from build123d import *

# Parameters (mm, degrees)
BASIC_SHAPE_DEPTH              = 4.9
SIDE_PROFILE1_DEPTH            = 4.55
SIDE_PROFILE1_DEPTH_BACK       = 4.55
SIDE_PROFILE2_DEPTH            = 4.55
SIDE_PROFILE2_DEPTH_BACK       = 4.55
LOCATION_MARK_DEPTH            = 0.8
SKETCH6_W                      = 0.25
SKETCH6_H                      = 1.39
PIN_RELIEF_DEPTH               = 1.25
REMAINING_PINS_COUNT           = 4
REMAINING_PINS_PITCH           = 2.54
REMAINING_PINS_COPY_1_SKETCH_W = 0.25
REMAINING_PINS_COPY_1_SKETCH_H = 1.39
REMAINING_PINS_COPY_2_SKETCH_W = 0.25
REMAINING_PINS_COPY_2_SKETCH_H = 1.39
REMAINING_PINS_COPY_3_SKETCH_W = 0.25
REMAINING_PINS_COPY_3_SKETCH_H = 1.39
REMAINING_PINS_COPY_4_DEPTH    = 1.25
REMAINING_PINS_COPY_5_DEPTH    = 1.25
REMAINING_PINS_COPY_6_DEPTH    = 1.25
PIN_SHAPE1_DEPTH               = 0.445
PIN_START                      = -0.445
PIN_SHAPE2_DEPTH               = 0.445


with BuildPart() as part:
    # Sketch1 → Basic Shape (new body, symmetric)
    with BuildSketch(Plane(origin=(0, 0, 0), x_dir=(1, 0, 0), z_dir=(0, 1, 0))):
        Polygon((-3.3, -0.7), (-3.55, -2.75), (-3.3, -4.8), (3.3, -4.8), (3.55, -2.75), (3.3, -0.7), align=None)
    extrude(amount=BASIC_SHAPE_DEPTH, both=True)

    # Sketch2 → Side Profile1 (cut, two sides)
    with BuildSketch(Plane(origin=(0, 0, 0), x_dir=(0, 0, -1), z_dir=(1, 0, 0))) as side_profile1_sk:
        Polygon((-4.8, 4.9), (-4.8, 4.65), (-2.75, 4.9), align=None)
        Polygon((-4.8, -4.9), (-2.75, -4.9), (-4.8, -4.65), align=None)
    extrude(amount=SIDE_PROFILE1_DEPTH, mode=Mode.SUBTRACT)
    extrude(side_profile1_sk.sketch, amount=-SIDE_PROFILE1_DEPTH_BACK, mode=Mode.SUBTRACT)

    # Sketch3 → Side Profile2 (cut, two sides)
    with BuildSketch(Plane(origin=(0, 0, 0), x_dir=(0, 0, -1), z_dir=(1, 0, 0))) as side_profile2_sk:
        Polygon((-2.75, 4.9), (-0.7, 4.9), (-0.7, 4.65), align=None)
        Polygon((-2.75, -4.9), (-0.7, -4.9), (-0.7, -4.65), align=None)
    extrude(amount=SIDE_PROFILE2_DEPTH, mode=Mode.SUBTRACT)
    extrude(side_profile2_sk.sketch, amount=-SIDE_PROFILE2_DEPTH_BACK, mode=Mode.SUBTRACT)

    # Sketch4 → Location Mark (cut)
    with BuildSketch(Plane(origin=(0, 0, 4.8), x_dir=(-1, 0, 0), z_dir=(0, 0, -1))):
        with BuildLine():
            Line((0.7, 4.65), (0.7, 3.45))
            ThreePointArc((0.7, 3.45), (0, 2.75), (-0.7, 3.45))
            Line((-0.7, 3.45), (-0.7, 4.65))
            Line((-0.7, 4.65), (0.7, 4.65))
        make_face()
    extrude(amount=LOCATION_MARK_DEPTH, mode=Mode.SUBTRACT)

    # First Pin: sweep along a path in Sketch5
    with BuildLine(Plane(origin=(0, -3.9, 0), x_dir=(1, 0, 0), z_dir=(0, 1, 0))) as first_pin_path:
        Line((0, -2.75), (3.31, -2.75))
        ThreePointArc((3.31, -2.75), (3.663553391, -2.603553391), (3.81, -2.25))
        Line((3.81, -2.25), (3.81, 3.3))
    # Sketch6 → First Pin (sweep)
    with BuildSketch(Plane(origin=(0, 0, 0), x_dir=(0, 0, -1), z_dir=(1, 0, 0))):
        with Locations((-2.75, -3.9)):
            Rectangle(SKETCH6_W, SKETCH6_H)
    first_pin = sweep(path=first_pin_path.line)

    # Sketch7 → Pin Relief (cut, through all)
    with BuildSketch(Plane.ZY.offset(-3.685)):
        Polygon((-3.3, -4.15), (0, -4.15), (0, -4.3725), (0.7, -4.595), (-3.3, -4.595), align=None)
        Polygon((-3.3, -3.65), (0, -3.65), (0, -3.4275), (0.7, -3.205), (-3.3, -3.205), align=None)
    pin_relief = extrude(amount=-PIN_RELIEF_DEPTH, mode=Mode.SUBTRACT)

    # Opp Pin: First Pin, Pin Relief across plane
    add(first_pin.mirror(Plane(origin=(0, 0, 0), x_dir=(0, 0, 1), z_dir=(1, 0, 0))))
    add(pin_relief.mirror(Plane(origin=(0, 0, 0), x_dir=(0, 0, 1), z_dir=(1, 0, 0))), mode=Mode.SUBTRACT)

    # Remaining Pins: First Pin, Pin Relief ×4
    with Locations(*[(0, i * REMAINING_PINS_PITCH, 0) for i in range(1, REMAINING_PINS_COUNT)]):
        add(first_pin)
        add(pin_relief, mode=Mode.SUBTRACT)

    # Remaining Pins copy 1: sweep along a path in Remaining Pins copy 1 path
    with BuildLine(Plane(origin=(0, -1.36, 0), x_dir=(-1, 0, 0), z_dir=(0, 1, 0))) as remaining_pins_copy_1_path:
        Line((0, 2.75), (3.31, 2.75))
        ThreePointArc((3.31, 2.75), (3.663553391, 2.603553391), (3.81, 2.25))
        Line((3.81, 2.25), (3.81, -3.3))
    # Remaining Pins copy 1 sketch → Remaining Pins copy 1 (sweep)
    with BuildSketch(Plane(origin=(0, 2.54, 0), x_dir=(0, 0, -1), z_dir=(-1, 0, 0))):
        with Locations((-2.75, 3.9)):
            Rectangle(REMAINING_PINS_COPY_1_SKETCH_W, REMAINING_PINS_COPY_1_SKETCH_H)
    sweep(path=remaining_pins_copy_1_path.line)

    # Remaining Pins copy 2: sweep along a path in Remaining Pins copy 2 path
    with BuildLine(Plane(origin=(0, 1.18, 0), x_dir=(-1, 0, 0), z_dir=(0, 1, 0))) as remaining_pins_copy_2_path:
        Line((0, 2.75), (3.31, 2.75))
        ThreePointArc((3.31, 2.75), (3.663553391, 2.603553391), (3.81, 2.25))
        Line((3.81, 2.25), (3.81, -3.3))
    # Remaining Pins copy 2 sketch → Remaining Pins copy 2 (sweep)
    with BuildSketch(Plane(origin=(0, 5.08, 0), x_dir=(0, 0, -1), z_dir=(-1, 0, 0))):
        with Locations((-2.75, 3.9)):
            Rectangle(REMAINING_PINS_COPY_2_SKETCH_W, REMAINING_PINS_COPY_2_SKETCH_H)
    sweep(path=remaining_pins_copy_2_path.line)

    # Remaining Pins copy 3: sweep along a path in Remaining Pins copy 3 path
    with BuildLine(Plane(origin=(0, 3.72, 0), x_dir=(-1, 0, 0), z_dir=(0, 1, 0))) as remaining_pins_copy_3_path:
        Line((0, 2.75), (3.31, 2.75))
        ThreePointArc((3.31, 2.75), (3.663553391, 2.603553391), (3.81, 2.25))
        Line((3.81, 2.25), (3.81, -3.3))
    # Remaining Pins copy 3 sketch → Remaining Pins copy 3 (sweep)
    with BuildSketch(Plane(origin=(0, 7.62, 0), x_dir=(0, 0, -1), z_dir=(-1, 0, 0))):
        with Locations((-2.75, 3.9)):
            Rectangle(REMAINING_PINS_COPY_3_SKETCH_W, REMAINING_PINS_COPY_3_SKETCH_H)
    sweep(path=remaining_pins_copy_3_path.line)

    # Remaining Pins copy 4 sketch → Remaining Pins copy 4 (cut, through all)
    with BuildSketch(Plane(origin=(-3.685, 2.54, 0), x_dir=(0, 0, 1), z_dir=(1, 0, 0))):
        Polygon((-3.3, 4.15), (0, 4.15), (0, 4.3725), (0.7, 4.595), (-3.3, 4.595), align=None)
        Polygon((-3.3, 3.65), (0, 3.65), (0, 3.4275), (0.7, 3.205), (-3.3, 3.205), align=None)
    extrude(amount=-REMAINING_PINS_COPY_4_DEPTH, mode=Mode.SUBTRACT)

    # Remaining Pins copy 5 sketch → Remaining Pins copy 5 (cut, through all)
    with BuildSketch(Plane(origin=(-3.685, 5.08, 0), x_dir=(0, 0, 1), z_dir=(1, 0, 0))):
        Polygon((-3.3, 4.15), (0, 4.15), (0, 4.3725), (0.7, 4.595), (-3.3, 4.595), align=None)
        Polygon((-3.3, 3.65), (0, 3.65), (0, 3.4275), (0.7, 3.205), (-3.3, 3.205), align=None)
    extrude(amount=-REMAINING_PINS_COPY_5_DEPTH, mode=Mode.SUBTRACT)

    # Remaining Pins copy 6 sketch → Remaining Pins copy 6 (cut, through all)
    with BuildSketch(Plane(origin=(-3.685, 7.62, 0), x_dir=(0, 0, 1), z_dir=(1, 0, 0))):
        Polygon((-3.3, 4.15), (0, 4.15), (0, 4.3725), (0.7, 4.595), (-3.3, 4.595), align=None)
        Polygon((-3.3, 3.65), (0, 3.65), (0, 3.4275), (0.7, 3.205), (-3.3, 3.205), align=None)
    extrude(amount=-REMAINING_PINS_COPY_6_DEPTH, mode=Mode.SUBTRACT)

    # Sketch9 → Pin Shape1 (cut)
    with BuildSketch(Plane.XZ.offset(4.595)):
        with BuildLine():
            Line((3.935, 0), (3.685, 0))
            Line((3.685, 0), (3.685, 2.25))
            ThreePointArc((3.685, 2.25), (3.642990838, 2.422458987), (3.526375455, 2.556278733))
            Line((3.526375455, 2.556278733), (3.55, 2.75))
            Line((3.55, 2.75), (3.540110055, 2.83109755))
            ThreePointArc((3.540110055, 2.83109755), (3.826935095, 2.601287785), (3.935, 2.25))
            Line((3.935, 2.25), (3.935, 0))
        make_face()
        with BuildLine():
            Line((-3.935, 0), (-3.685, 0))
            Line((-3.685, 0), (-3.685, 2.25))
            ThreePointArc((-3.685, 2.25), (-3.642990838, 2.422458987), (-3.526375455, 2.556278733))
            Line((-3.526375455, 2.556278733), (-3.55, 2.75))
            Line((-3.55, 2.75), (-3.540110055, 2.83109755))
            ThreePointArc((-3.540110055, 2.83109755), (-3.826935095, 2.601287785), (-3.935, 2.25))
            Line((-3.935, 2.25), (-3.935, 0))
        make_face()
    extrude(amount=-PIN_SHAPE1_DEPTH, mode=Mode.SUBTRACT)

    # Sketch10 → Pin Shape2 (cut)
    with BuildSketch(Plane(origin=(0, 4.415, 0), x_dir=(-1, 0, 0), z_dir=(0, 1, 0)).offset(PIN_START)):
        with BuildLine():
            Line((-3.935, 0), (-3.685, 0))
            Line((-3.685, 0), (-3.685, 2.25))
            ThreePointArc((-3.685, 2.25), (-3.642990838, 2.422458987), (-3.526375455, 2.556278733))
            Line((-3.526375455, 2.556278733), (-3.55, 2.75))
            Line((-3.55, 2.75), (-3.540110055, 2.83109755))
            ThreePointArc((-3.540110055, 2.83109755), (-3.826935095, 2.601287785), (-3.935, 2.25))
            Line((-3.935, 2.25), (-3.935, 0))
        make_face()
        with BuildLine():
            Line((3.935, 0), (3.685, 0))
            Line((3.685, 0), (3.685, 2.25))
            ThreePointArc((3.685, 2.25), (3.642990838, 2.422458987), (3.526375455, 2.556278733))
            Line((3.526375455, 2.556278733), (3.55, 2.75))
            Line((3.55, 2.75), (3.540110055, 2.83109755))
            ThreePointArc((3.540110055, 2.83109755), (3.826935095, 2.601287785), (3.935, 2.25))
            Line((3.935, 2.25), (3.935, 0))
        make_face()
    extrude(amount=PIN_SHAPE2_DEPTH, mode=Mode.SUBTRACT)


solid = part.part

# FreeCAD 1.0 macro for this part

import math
import FreeCAD as App
import Part
import Sketcher

V = App.Vector
Q = App.Units.Quantity

doc = App.newDocument("Part")
body = doc.addObject("PartDesign::Body", "Body")

sketch1 = body.newObject("Sketcher::SketchObject", "Sketch")
sketch1.AttachmentSupport = (doc.getObject("XZ_Plane"), [""])
sketch1.MapMode = "FlatFace"
sketch1.addGeometry(Part.LineSegment(V(-3.3, 0.7, 0), V(-3.5, 2.8, 0)), False)
sketch1.addGeometry(Part.LineSegment(V(-3.5, 2.8, 0), V(-3.3, 4.8, 0)), False)
sketch1.addGeometry(Part.LineSegment(V(-3.3, 4.8, 0), V(3.3, 4.8, 0)), False)
sketch1.addGeometry(Part.LineSegment(V(3.3, 4.8, 0), V(3.5, 2.8, 0)), False)
sketch1.addGeometry(Part.LineSegment(V(3.5, 2.8, 0), V(3.3, 0.7, 0)), False)
sketch1.addGeometry(Part.LineSegment(V(3.3, 0.7, 0), V(-3.3, 0.7, 0)), False)
sketch1.addConstraint(Sketcher.Constraint("Coincident", 0, 2, 1, 1))
sketch1.addConstraint(Sketcher.Constraint("Coincident", 1, 2, 2, 1))
sketch1.addConstraint(Sketcher.Constraint("Coincident", 2, 2, 3, 1))
sketch1.addConstraint(Sketcher.Constraint("Coincident", 3, 2, 4, 1))
sketch1.addConstraint(Sketcher.Constraint("Coincident", 4, 2, 5, 1))
sketch1.addConstraint(Sketcher.Constraint("Coincident", 5, 2, 0, 1))
sketch1.addConstraint(Sketcher.Constraint("Horizontal", 2))
sketch1.addConstraint(Sketcher.Constraint("Horizontal", 5))
sketch1.addConstraint(Sketcher.Constraint("Symmetric", 0, 2, 3, 2, -2))
sketch1.addConstraint(Sketcher.Constraint("Parallel", 0, 3))
sketch1.addConstraint(Sketcher.Constraint("Parallel", 1, 4))
sketch1.addConstraint(Sketcher.Constraint("Vertical", 2, 2, 4, 2))
sketch1.addConstraint(Sketcher.Constraint("Vertical", 1, 2, 5, 2))
sketch1.addConstraint(Sketcher.Constraint("DistanceX", 2, 1, 2, 2, Q("6.6 mm")))
sketch1.addConstraint(Sketcher.Constraint("DistanceY", -1, 1, 1, 2, Q("4.8 mm")))
sketch1.addConstraint(Sketcher.Constraint("DistanceY", -1, 1, 4, 2, Q("0.7 mm")))
sketch1.addConstraint(Sketcher.Constraint("DistanceX", 0, 2, 3, 2, Q("7.1 mm")))
pad1 = body.newObject("PartDesign::Pad", "Pad")
pad1.Profile = sketch1
pad1.Length = 9.8
pad1.Midplane = True

sketch2 = body.newObject("Sketcher::SketchObject", "Sketch001")
sketch2.AttachmentSupport = (doc.getObject("YZ_Plane"), [""])
sketch2.MapMode = "FlatFace"
sketch2.addGeometry(Part.LineSegment(V(4.9, 4.8, 0), V(4.65, 4.8, 0)), False)
sketch2.addGeometry(Part.LineSegment(V(4.65, 4.8, 0), V(4.9, 2.75, 0)), False)
sketch2.addGeometry(Part.LineSegment(V(4.9, 2.75, 0), V(4.9, 4.8, 0)), False)
sketch2.addGeometry(Part.LineSegment(V(-4.9, 4.8, 0), V(-4.9, 2.75, 0)), False)
sketch2.addGeometry(Part.LineSegment(V(-4.9, 2.75, 0), V(-4.65, 4.8, 0)), False)
sketch2.addGeometry(Part.LineSegment(V(-4.65, 4.8, 0), V(-4.9, 4.8, 0)), False)
sketch2.addConstraint(Sketcher.Constraint("Coincident", 0, 2, 1, 1))
sketch2.addConstraint(Sketcher.Constraint("Coincident", 1, 2, 2, 1))
sketch2.addConstraint(Sketcher.Constraint("Coincident", 2, 2, 0, 1))
sketch2.addConstraint(Sketcher.Constraint("Coincident", 3, 2, 4, 1))
sketch2.addConstraint(Sketcher.Constraint("Coincident", 4, 2, 5, 1))
sketch2.addConstraint(Sketcher.Constraint("Coincident", 5, 2, 3, 1))
sketch2.addConstraint(Sketcher.Constraint("Horizontal", 0))
sketch2.addConstraint(Sketcher.Constraint("Vertical", 2))
sketch2.addConstraint(Sketcher.Constraint("Vertical", 3))
sketch2.addConstraint(Sketcher.Constraint("Horizontal", 5))
sketch2.addConstraint(Sketcher.Constraint("Symmetric", 1, 2, 3, 2, -2))
sketch2.addConstraint(Sketcher.Constraint("Symmetric", 0, 2, 4, 2, -2))
sketch2.addConstraint(Sketcher.Constraint("DistanceX", 0, 2, 0, 1, Q("0.25 mm")))
sketch2.addConstraint(Sketcher.Constraint("DistanceY", 2, 1, 2, 2, Q("2.05 mm")))
sketch2.addConstraint(Sketcher.Constraint("DistanceY", -1, 1, 0, 2, Q("4.8 mm")))
sketch2.addConstraint(Sketcher.Constraint("DistanceX", -1, 1, 1, 2, Q("4.9 mm")))
pocket1 = body.newObject("PartDesign::Pocket", "Pocket")
pocket1.Profile = sketch2
pocket1.Type = "ThroughAll"
pocket1.Midplane = True

sketch3 = body.newObject("Sketcher::SketchObject", "Sketch002")
sketch3.AttachmentSupport = (doc.getObject("YZ_Plane"), [""])
sketch3.MapMode = "FlatFace"
sketch3.addGeometry(Part.LineSegment(V(4.9, 0.7, 0), V(4.9, 2.75, 0)), False)
sketch3.addGeometry(Part.LineSegment(V(4.9, 2.75, 0), V(4.65, 0.7, 0)), False)
sketch3.addGeometry(Part.LineSegment(V(4.65, 0.7, 0), V(4.9, 0.7, 0)), False)
sketch3.addGeometry(Part.LineSegment(V(-4.9, 2.75, 0), V(-4.9, 0.7, 0)), False)
sketch3.addGeometry(Part.LineSegment(V(-4.9, 0.7, 0), V(-4.65, 0.7, 0)), False)
sketch3.addGeometry(Part.LineSegment(V(-4.65, 0.7, 0), V(-4.9, 2.75, 0)), False)
sketch3.addConstraint(Sketcher.Constraint("Coincident", 0, 2, 1, 1))
sketch3.addConstraint(Sketcher.Constraint("Coincident", 1, 2, 2, 1))
sketch3.addConstraint(Sketcher.Constraint("Coincident", 2, 2, 0, 1))
sketch3.addConstraint(Sketcher.Constraint("Coincident", 3, 2, 4, 1))
sketch3.addConstraint(Sketcher.Constraint("Coincident", 4, 2, 5, 1))
sketch3.addConstraint(Sketcher.Constraint("Coincident", 5, 2, 3, 1))
sketch3.addConstraint(Sketcher.Constraint("Vertical", 0))
sketch3.addConstraint(Sketcher.Constraint("Horizontal", 2))
sketch3.addConstraint(Sketcher.Constraint("Vertical", 3))
sketch3.addConstraint(Sketcher.Constraint("Horizontal", 4))
sketch3.addConstraint(Sketcher.Constraint("Symmetric", 2, 2, 3, 2, -2))
sketch3.addConstraint(Sketcher.Constraint("Horizontal", 0, 2, 5, 2))
sketch3.addConstraint(Sketcher.Constraint("Equal", 2, 4))
sketch3.addConstraint(Sketcher.Constraint("DistanceX", 2, 1, 2, 2, Q("0.25 mm")))
sketch3.addConstraint(Sketcher.Constraint("DistanceY", 0, 1, 0, 2, Q("2.05 mm")))
sketch3.addConstraint(Sketcher.Constraint("DistanceX", -1, 1, 0, 2, Q("4.9 mm")))
sketch3.addConstraint(Sketcher.Constraint("DistanceY", -1, 1, 1, 2, Q("0.7 mm")))
pocket2 = body.newObject("PartDesign::Pocket", "Pocket001")
pocket2.Profile = sketch3
pocket2.Type = "ThroughAll"
pocket2.Midplane = True

sketch4 = body.newObject("Sketcher::SketchObject", "Sketch003")
sketch4.AttachmentSupport = (doc.getObject("XY_Plane"), [""])
sketch4.MapMode = "FlatFace"
sketch4.AttachmentOffset = App.Placement(V(0, 0, 4.8), App.Rotation())
sketch4.addGeometry(Part.LineSegment(V(-0.7, 3.5, 0), V(-0.7, 4.7, 0)), False)
sketch4.addGeometry(Part.LineSegment(V(-0.7, 4.7, 0), V(0.7, 4.7, 0)), False)
sketch4.addGeometry(Part.LineSegment(V(0.7, 4.7, 0), V(0.7, 3.5, 0)), False)
sketch4.addGeometry(Part.ArcOfCircle(Part.Circle(V(0, 3.5, 0), V(0, 0, 1), 0.7), math.radians(180), math.radians(360)), False)
sketch4.addConstraint(Sketcher.Constraint("Coincident", 0, 2, 1, 1))
sketch4.addConstraint(Sketcher.Constraint("Coincident", 1, 2, 2, 1))
sketch4.addConstraint(Sketcher.Constraint("Tangent", 2, 2, 3, 2))
sketch4.addConstraint(Sketcher.Constraint("Tangent", 3, 1, 0, 1))
sketch4.addConstraint(Sketcher.Constraint("Vertical", 0))
sketch4.addConstraint(Sketcher.Constraint("Horizontal", 1))
sketch4.addConstraint(Sketcher.Constraint("Vertical", 2))
sketch4.addConstraint(Sketcher.Constraint("PointOnObject", 3, 3, -2))
sketch4.addConstraint(Sketcher.Constraint("Radius", 3, Q("0.7 mm")))
sketch4.addConstraint(Sketcher.Constraint("DistanceY", 0, 1, 0, 2, Q("1.2 mm")))
sketch4.addConstraint(Sketcher.Constraint("DistanceY", -1, 1, 3, 3, Q("3.45 mm")))
pocket3 = body.newObject("PartDesign::Pocket", "Pocket002")
pocket3.Profile = sketch4
pocket3.Length = 0.8

sketch5 = body.newObject("Sketcher::SketchObject", "Sketch004")
sketch5.AttachmentSupport = (doc.getObject("YZ_Plane"), [""])
sketch5.MapMode = "FlatFace"
sketch5.addGeometry(Part.LineSegment(V(-3.21, 2.88, 0), V(-4.59, 2.88, 0)), False)
sketch5.addGeometry(Part.LineSegment(V(-4.59, 2.88, 0), V(-4.59, 2.62, 0)), False)
sketch5.addGeometry(Part.LineSegment(V(-4.59, 2.62, 0), V(-3.21, 2.62, 0)), False)
sketch5.addGeometry(Part.LineSegment(V(-3.21, 2.62, 0), V(-3.21, 2.88, 0)), False)
sketch5.addConstraint(Sketcher.Constraint("Coincident", 0, 2, 1, 1))
sketch5.addConstraint(Sketcher.Constraint("Coincident", 1, 2, 2, 1))
sketch5.addConstraint(Sketcher.Constraint("Coincident", 2, 2, 3, 1))
sketch5.addConstraint(Sketcher.Constraint("Coincident", 3, 2, 0, 1))
sketch5.addConstraint(Sketcher.Constraint("Horizontal", 0))
sketch5.addConstraint(Sketcher.Constraint("Vertical", 1))
sketch5.addConstraint(Sketcher.Constraint("Horizontal", 2))
sketch5.addConstraint(Sketcher.Constraint("Vertical", 3))
sketch5.addConstraint(Sketcher.Constraint("DistanceX", 0, 2, 0, 1, Q("1.39 mm")))
sketch5.addConstraint(Sketcher.Constraint("DistanceY", 1, 2, 1, 1, Q("0.25 mm")))
sketch5.addConstraint(Sketcher.Constraint("DistanceX", 0, 2, -1, 1, Q("4.595 mm")))
sketch5.addConstraint(Sketcher.Constraint("DistanceY", -1, 1, 0, 2, Q("2.875 mm")))

sketch6 = body.newObject("Sketcher::SketchObject", "Sketch005")
sketch6.AttachmentSupport = (doc.getObject("XZ_Plane"), [""])
sketch6.MapMode = "FlatFace"
sketch6.AttachmentOffset = App.Placement(V(0, 0, 3.9), App.Rotation())
sketch6.addGeometry(Part.LineSegment(V(0, 2.75, 0), V(3.31, 2.75, 0)), False)
sketch6.addGeometry(Part.ArcOfCircle(Part.Circle(V(3.31, 2.25, 0), V(0, 0, 1), 0.5), math.radians(0), math.radians(90)), False)
sketch6.addGeometry(Part.LineSegment(V(3.81, 2.25, 0), V(3.81, -3.3, 0)), False)
sketch6.addConstraint(Sketcher.Constraint("Tangent", 0, 2, 1, 2))
sketch6.addConstraint(Sketcher.Constraint("Tangent", 1, 1, 2, 1))
sketch6.addConstraint(Sketcher.Constraint("Horizontal", 0))
sketch6.addConstraint(Sketcher.Constraint("Vertical", 2))
sketch6.addConstraint(Sketcher.Constraint("PointOnObject", 0, 1, -2))
sketch6.addConstraint(Sketcher.Constraint("Radius", 1, Q("0.5 mm")))
sketch6.addConstraint(Sketcher.Constraint("DistanceX", 0, 1, 0, 2, Q("3.31 mm")))
sketch6.addConstraint(Sketcher.Constraint("DistanceY", 2, 2, 2, 1, Q("5.55 mm")))
sketch6.addConstraint(Sketcher.Constraint("DistanceY", 2, 2, -1, 1, Q("3.3 mm")))
doc.recompute()

additivepipe = body.newObject("PartDesign::AdditivePipe", "AdditivePipe")
additivepipe.Profile = sketch5
additivepipe.Spine = (sketch6, ["Edge1", "Edge2", "Edge3"])

sketch7 = body.newObject("Sketcher::SketchObject", "Sketch006")
sketch7.AttachmentSupport = (doc.getObject("YZ_Plane"), [""])
sketch7.MapMode = "FlatFace"
sketch7.AttachmentOffset = App.Placement(V(0, 0, 3.685), App.Rotation())
sketch7.addGeometry(Part.LineSegment(V(-4.15, 0, 0), V(-4.15, -3.3, 0)), False)
sketch7.addGeometry(Part.LineSegment(V(-4.15, -3.3, 0), V(-4.59, -3.3, 0)), False)
sketch7.addGeometry(Part.LineSegment(V(-4.59, -3.3, 0), V(-4.59, 0.7, 0)), False)
sketch7.addGeometry(Part.LineSegment(V(-4.59, 0.7, 0), V(-4.37, 0, 0)), False)
sketch7.addGeometry(Part.LineSegment(V(-4.37, 0, 0), V(-4.15, 0, 0)), False)
sketch7.addGeometry(Part.LineSegment(V(-3.65, -3.3, 0), V(-3.65, 0, 0)), False)
sketch7.addGeometry(Part.LineSegment(V(-3.65, 0, 0), V(-3.43, 0, 0)), False)
sketch7.addGeometry(Part.LineSegment(V(-3.43, 0, 0), V(-3.21, 0.7, 0)), False)
sketch7.addGeometry(Part.LineSegment(V(-3.21, 0.7, 0), V(-3.21, -3.3, 0)), False)
sketch7.addGeometry(Part.LineSegment(V(-3.21, -3.3, 0), V(-3.65, -3.3, 0)), False)
sketch7.addConstraint(Sketcher.Constraint("Coincident", 0, 2, 1, 1))
sketch7.addConstraint(Sketcher.Constraint("Coincident", 1, 2, 2, 1))
sketch7.addConstraint(Sketcher.Constraint("Coincident", 2, 2, 3, 1))
sketch7.addConstraint(Sketcher.Constraint("Coincident", 3, 2, 4, 1))
sketch7.addConstraint(Sketcher.Constraint("Coincident", 4, 2, 0, 1))
sketch7.addConstraint(Sketcher.Constraint("Coincident", 5, 2, 6, 1))
sketch7.addConstraint(Sketcher.Constraint("Coincident", 6, 2, 7, 1))
sketch7.addConstraint(Sketcher.Constraint("Coincident", 7, 2, 8, 1))
sketch7.addConstraint(Sketcher.Constraint("Coincident", 8, 2, 9, 1))
sketch7.addConstraint(Sketcher.Constraint("Coincident", 9, 2, 5, 1))
sketch7.addConstraint(Sketcher.Constraint("Vertical", 0))
sketch7.addConstraint(Sketcher.Constraint("Horizontal", 1))
sketch7.addConstraint(Sketcher.Constraint("Vertical", 2))
sketch7.addConstraint(Sketcher.Constraint("Horizontal", 4))
sketch7.addConstraint(Sketcher.Constraint("Vertical", 5))
sketch7.addConstraint(Sketcher.Constraint("Horizontal", 6))
sketch7.addConstraint(Sketcher.Constraint("Vertical", 8))
sketch7.addConstraint(Sketcher.Constraint("Horizontal", 9))
sketch7.addConstraint(Sketcher.Constraint("PointOnObject", 3, 2, -1))
sketch7.addConstraint(Sketcher.Constraint("PointOnObject", 5, 2, -1))
sketch7.addConstraint(Sketcher.Constraint("Horizontal", 2, 2, 7, 2))
sketch7.addConstraint(Sketcher.Constraint("Horizontal", 1, 2, 8, 2))
sketch7.addConstraint(Sketcher.Constraint("Equal", 4, 6))
sketch7.addConstraint(Sketcher.Constraint("Equal", 1, 9))
sketch7.addConstraint(Sketcher.Constraint("DistanceY", 2, 1, 2, 2, Q("4 mm")))
sketch7.addConstraint(Sketcher.Constraint("DistanceY", 0, 2, 0, 1, Q("3.3 mm")))
sketch7.addConstraint(Sketcher.Constraint("DistanceX", 4, 2, 5, 2, Q("0.5 mm")))
sketch7.addConstraint(Sketcher.Constraint("DistanceX", 1, 2, 1, 1, Q("0.445 mm")))
sketch7.addConstraint(Sketcher.Constraint("DistanceX", 0, 2, -1, 1, Q("4.15 mm")))
sketch7.addConstraint(Sketcher.Constraint("DistanceX", 4, 1, 4, 2, Q("0.2225 mm")))
pocket4 = body.newObject("PartDesign::Pocket", "Pocket003")
pocket4.Profile = sketch7
pocket4.Type = "ThroughAll"
pocket4.Reversed = True
doc.recompute()

mirrored = body.newObject("PartDesign::Mirrored", "Mirrored")
mirrored.Originals = [additivepipe, pocket4]
mirrored.MirrorPlane = (doc.getObject("YZ_Plane"), [""])
body.Tip = mirrored
doc.recompute()

linearpattern = body.newObject("PartDesign::LinearPattern", "LinearPattern")
linearpattern.Originals = [additivepipe, pocket4]
linearpattern.Direction = (doc.getObject("Y_Axis"), [""])
linearpattern.Mode = "offset"
linearpattern.Offset = 2.54
linearpattern.Occurrences = 4
body.Tip = linearpattern

sketch8 = body.newObject("Sketcher::SketchObject", "Sketch007")
sketch8.AttachmentSupport = (doc.getObject("YZ_Plane"), [""])
sketch8.MapMode = "FlatFace"
sketch8.addGeometry(Part.LineSegment(V(-2.06, 2.88, 0), V(-0.67, 2.88, 0)), False)
sketch8.addGeometry(Part.LineSegment(V(-0.67, 2.88, 0), V(-0.67, 2.62, 0)), False)
sketch8.addGeometry(Part.LineSegment(V(-0.67, 2.62, 0), V(-2.06, 2.62, 0)), False)
sketch8.addGeometry(Part.LineSegment(V(-2.06, 2.62, 0), V(-2.06, 2.88, 0)), False)
sketch8.addConstraint(Sketcher.Constraint("Coincident", 0, 2, 1, 1))
sketch8.addConstraint(Sketcher.Constraint("Coincident", 1, 2, 2, 1))
sketch8.addConstraint(Sketcher.Constraint("Coincident", 2, 2, 3, 1))
sketch8.addConstraint(Sketcher.Constraint("Coincident", 3, 2, 0, 1))
sketch8.addConstraint(Sketcher.Constraint("Horizontal", 0))
sketch8.addConstraint(Sketcher.Constraint("Vertical", 1))
sketch8.addConstraint(Sketcher.Constraint("Horizontal", 2))
sketch8.addConstraint(Sketcher.Constraint("Vertical", 3))
sketch8.addConstraint(Sketcher.Constraint("DistanceX", 0, 1, 0, 2, Q("1.39 mm")))
sketch8.addConstraint(Sketcher.Constraint("DistanceY", 1, 2, 1, 1, Q("0.25 mm")))
sketch8.addConstraint(Sketcher.Constraint("DistanceX", 0, 2, -1, 1, Q("0.665 mm")))
sketch8.addConstraint(Sketcher.Constraint("DistanceY", -1, 1, 0, 2, Q("2.875 mm")))

sketch9 = body.newObject("Sketcher::SketchObject", "Sketch008")
sketch9.AttachmentSupport = (doc.getObject("XZ_Plane"), [""])
sketch9.MapMode = "FlatFace"
sketch9.AttachmentOffset = App.Placement(V(0, 0, 1.36), App.Rotation())
sketch9.addGeometry(Part.LineSegment(V(0, 2.75, 0), V(-3.31, 2.75, 0)), False)
sketch9.addGeometry(Part.ArcOfCircle(Part.Circle(V(-3.31, 2.25, 0), V(0, 0, 1), 0.5), math.radians(90), math.radians(180)), False)
sketch9.addGeometry(Part.LineSegment(V(-3.81, 2.25, 0), V(-3.81, -3.3, 0)), False)
sketch9.addConstraint(Sketcher.Constraint("Tangent", 0, 2, 1, 1))
sketch9.addConstraint(Sketcher.Constraint("Tangent", 1, 2, 2, 1))
sketch9.addConstraint(Sketcher.Constraint("Horizontal", 0))
sketch9.addConstraint(Sketcher.Constraint("Vertical", 2))
sketch9.addConstraint(Sketcher.Constraint("PointOnObject", 0, 1, -2))
sketch9.addConstraint(Sketcher.Constraint("Radius", 1, Q("0.5 mm")))
sketch9.addConstraint(Sketcher.Constraint("DistanceX", 0, 2, 0, 1, Q("3.31 mm")))
sketch9.addConstraint(Sketcher.Constraint("DistanceY", 2, 2, 2, 1, Q("5.55 mm")))
sketch9.addConstraint(Sketcher.Constraint("DistanceY", 2, 2, -1, 1, Q("3.3 mm")))
doc.recompute()

additivepipe2 = body.newObject("PartDesign::AdditivePipe", "AdditivePipe001")
additivepipe2.Profile = sketch8
additivepipe2.Spine = (sketch9, ["Edge1", "Edge2", "Edge3"])

sketch10 = body.newObject("Sketcher::SketchObject", "Sketch009")
sketch10.AttachmentSupport = (doc.getObject("YZ_Plane"), [""])
sketch10.MapMode = "FlatFace"
sketch10.addGeometry(Part.LineSegment(V(0.48, 2.88, 0), V(1.88, 2.88, 0)), False)
sketch10.addGeometry(Part.LineSegment(V(1.88, 2.88, 0), V(1.88, 2.62, 0)), False)
sketch10.addGeometry(Part.LineSegment(V(1.88, 2.62, 0), V(0.48, 2.62, 0)), False)
sketch10.addGeometry(Part.LineSegment(V(0.48, 2.62, 0), V(0.48, 2.88, 0)), False)
sketch10.addConstraint(Sketcher.Constraint("Coincident", 0, 2, 1, 1))
sketch10.addConstraint(Sketcher.Constraint("Coincident", 1, 2, 2, 1))
sketch10.addConstraint(Sketcher.Constraint("Coincident", 2, 2, 3, 1))
sketch10.addConstraint(Sketcher.Constraint("Coincident", 3, 2, 0, 1))
sketch10.addConstraint(Sketcher.Constraint("Horizontal", 0))
sketch10.addConstraint(Sketcher.Constraint("Vertical", 1))
sketch10.addConstraint(Sketcher.Constraint("Horizontal", 2))
sketch10.addConstraint(Sketcher.Constraint("Vertical", 3))
sketch10.addConstraint(Sketcher.Constraint("DistanceX", 0, 1, 0, 2, Q("1.39 mm")))
sketch10.addConstraint(Sketcher.Constraint("DistanceY", 1, 2, 1, 1, Q("0.25 mm")))
sketch10.addConstraint(Sketcher.Constraint("DistanceX", -1, 1, 0, 2, Q("1.875 mm")))
sketch10.addConstraint(Sketcher.Constraint("DistanceY", -1, 1, 0, 2, Q("2.875 mm")))

sketch11 = body.newObject("Sketcher::SketchObject", "Sketch010")
sketch11.AttachmentSupport = (doc.getObject("XZ_Plane"), [""])
sketch11.MapMode = "FlatFace"
sketch11.AttachmentOffset = App.Placement(V(0, 0, -1.18), App.Rotation())
sketch11.addGeometry(Part.LineSegment(V(0, 2.75, 0), V(-3.31, 2.75, 0)), False)
sketch11.addGeometry(Part.ArcOfCircle(Part.Circle(V(-3.31, 2.25, 0), V(0, 0, 1), 0.5), math.radians(90), math.radians(180)), False)
sketch11.addGeometry(Part.LineSegment(V(-3.81, 2.25, 0), V(-3.81, -3.3, 0)), False)
sketch11.addConstraint(Sketcher.Constraint("Tangent", 0, 2, 1, 1))
sketch11.addConstraint(Sketcher.Constraint("Tangent", 1, 2, 2, 1))
sketch11.addConstraint(Sketcher.Constraint("Horizontal", 0))
sketch11.addConstraint(Sketcher.Constraint("Vertical", 2))
sketch11.addConstraint(Sketcher.Constraint("PointOnObject", 0, 1, -2))
sketch11.addConstraint(Sketcher.Constraint("Radius", 1, Q("0.5 mm")))
sketch11.addConstraint(Sketcher.Constraint("DistanceX", 0, 2, 0, 1, Q("3.31 mm")))
sketch11.addConstraint(Sketcher.Constraint("DistanceY", 2, 2, 2, 1, Q("5.55 mm")))
sketch11.addConstraint(Sketcher.Constraint("DistanceY", 2, 2, -1, 1, Q("3.3 mm")))
doc.recompute()

additivepipe3 = body.newObject("PartDesign::AdditivePipe", "AdditivePipe002")
additivepipe3.Profile = sketch10
additivepipe3.Spine = (sketch11, ["Edge1", "Edge2", "Edge3"])

sketch12 = body.newObject("Sketcher::SketchObject", "Sketch011")
sketch12.AttachmentSupport = (doc.getObject("YZ_Plane"), [""])
sketch12.MapMode = "FlatFace"
sketch12.addGeometry(Part.LineSegment(V(3.02, 2.88, 0), V(4.42, 2.88, 0)), False)
sketch12.addGeometry(Part.LineSegment(V(4.42, 2.88, 0), V(4.42, 2.62, 0)), False)
sketch12.addGeometry(Part.LineSegment(V(4.42, 2.62, 0), V(3.02, 2.62, 0)), False)
sketch12.addGeometry(Part.LineSegment(V(3.02, 2.62, 0), V(3.02, 2.88, 0)), False)
sketch12.addConstraint(Sketcher.Constraint("Coincident", 0, 2, 1, 1))
sketch12.addConstraint(Sketcher.Constraint("Coincident", 1, 2, 2, 1))
sketch12.addConstraint(Sketcher.Constraint("Coincident", 2, 2, 3, 1))
sketch12.addConstraint(Sketcher.Constraint("Coincident", 3, 2, 0, 1))
sketch12.addConstraint(Sketcher.Constraint("Horizontal", 0))
sketch12.addConstraint(Sketcher.Constraint("Vertical", 1))
sketch12.addConstraint(Sketcher.Constraint("Horizontal", 2))
sketch12.addConstraint(Sketcher.Constraint("Vertical", 3))
sketch12.addConstraint(Sketcher.Constraint("DistanceX", 0, 1, 0, 2, Q("1.39 mm")))
sketch12.addConstraint(Sketcher.Constraint("DistanceY", 1, 2, 1, 1, Q("0.25 mm")))
sketch12.addConstraint(Sketcher.Constraint("DistanceX", -1, 1, 0, 2, Q("4.415 mm")))
sketch12.addConstraint(Sketcher.Constraint("DistanceY", -1, 1, 0, 2, Q("2.875 mm")))

sketch13 = body.newObject("Sketcher::SketchObject", "Sketch012")
sketch13.AttachmentSupport = (doc.getObject("XZ_Plane"), [""])
sketch13.MapMode = "FlatFace"
sketch13.AttachmentOffset = App.Placement(V(0, 0, -3.72), App.Rotation())
sketch13.addGeometry(Part.LineSegment(V(0, 2.75, 0), V(-3.31, 2.75, 0)), False)
sketch13.addGeometry(Part.ArcOfCircle(Part.Circle(V(-3.31, 2.25, 0), V(0, 0, 1), 0.5), math.radians(90), math.radians(180)), False)
sketch13.addGeometry(Part.LineSegment(V(-3.81, 2.25, 0), V(-3.81, -3.3, 0)), False)
sketch13.addConstraint(Sketcher.Constraint("Tangent", 0, 2, 1, 1))
sketch13.addConstraint(Sketcher.Constraint("Tangent", 1, 2, 2, 1))
sketch13.addConstraint(Sketcher.Constraint("Horizontal", 0))
sketch13.addConstraint(Sketcher.Constraint("Vertical", 2))
sketch13.addConstraint(Sketcher.Constraint("PointOnObject", 0, 1, -2))
sketch13.addConstraint(Sketcher.Constraint("Radius", 1, Q("0.5 mm")))
sketch13.addConstraint(Sketcher.Constraint("DistanceX", 0, 2, 0, 1, Q("3.31 mm")))
sketch13.addConstraint(Sketcher.Constraint("DistanceY", 2, 2, 2, 1, Q("5.55 mm")))
sketch13.addConstraint(Sketcher.Constraint("DistanceY", 2, 2, -1, 1, Q("3.3 mm")))
doc.recompute()

additivepipe4 = body.newObject("PartDesign::AdditivePipe", "AdditivePipe003")
additivepipe4.Profile = sketch12
additivepipe4.Spine = (sketch13, ["Edge1", "Edge2", "Edge3"])

sketch14 = body.newObject("Sketcher::SketchObject", "Sketch013")
sketch14.AttachmentSupport = (doc.getObject("YZ_Plane"), [""])
sketch14.MapMode = "FlatFace"
sketch14.AttachmentOffset = App.Placement(V(0, 0, -3.685), App.Rotation())
sketch14.addGeometry(Part.LineSegment(V(-1.61, -3.3, 0), V(-1.61, 0, 0)), False)
sketch14.addGeometry(Part.LineSegment(V(-1.61, 0, 0), V(-1.83, 0, 0)), False)
sketch14.addGeometry(Part.LineSegment(V(-1.83, 0, 0), V(-2.06, 0.7, 0)), False)
sketch14.addGeometry(Part.LineSegment(V(-2.06, 0.7, 0), V(-2.06, -3.3, 0)), False)
sketch14.addGeometry(Part.LineSegment(V(-2.06, -3.3, 0), V(-1.61, -3.3, 0)), False)
sketch14.addGeometry(Part.LineSegment(V(-1.11, 0, 0), V(-1.11, -3.3, 0)), False)
sketch14.addGeometry(Part.LineSegment(V(-1.11, -3.3, 0), V(-0.67, -3.3, 0)), False)
sketch14.addGeometry(Part.LineSegment(V(-0.67, -3.3, 0), V(-0.67, 0.7, 0)), False)
sketch14.addGeometry(Part.LineSegment(V(-0.67, 0.7, 0), V(-0.89, 0, 0)), False)
sketch14.addGeometry(Part.LineSegment(V(-0.89, 0, 0), V(-1.11, 0, 0)), False)
sketch14.addConstraint(Sketcher.Constraint("Coincident", 0, 2, 1, 1))
sketch14.addConstraint(Sketcher.Constraint("Coincident", 1, 2, 2, 1))
sketch14.addConstraint(Sketcher.Constraint("Coincident", 2, 2, 3, 1))
sketch14.addConstraint(Sketcher.Constraint("Coincident", 3, 2, 4, 1))
sketch14.addConstraint(Sketcher.Constraint("Coincident", 4, 2, 0, 1))
sketch14.addConstraint(Sketcher.Constraint("Coincident", 5, 2, 6, 1))
sketch14.addConstraint(Sketcher.Constraint("Coincident", 6, 2, 7, 1))
sketch14.addConstraint(Sketcher.Constraint("Coincident", 7, 2, 8, 1))
sketch14.addConstraint(Sketcher.Constraint("Coincident", 8, 2, 9, 1))
sketch14.addConstraint(Sketcher.Constraint("Coincident", 9, 2, 5, 1))
sketch14.addConstraint(Sketcher.Constraint("Vertical", 0))
sketch14.addConstraint(Sketcher.Constraint("Horizontal", 1))
sketch14.addConstraint(Sketcher.Constraint("Vertical", 3))
sketch14.addConstraint(Sketcher.Constraint("Horizontal", 4))
sketch14.addConstraint(Sketcher.Constraint("Vertical", 5))
sketch14.addConstraint(Sketcher.Constraint("Horizontal", 6))
sketch14.addConstraint(Sketcher.Constraint("Vertical", 7))
sketch14.addConstraint(Sketcher.Constraint("Horizontal", 9))
sketch14.addConstraint(Sketcher.Constraint("PointOnObject", 0, 2, -1))
sketch14.addConstraint(Sketcher.Constraint("PointOnObject", 8, 2, -1))
sketch14.addConstraint(Sketcher.Constraint("Horizontal", 4, 2, 5, 2))
sketch14.addConstraint(Sketcher.Constraint("Horizontal", 2, 2, 7, 2))
sketch14.addConstraint(Sketcher.Constraint("Equal", 4, 6))
sketch14.addConstraint(Sketcher.Constraint("Equal", 1, 9))
sketch14.addConstraint(Sketcher.Constraint("DistanceY", 3, 2, 3, 1, Q("4 mm")))
sketch14.addConstraint(Sketcher.Constraint("DistanceY", 0, 1, 0, 2, Q("3.3 mm")))
sketch14.addConstraint(Sketcher.Constraint("DistanceX", 4, 2, 5, 2, Q("0.5 mm")))
sketch14.addConstraint(Sketcher.Constraint("DistanceX", 4, 1, 4, 2, Q("0.445 mm")))
sketch14.addConstraint(Sketcher.Constraint("DistanceX", 0, 2, -1, 1, Q("1.61 mm")))
sketch14.addConstraint(Sketcher.Constraint("DistanceX", 1, 2, 1, 1, Q("0.2225 mm")))
pocket5 = body.newObject("PartDesign::Pocket", "Pocket004")
pocket5.Profile = sketch14
pocket5.Type = "ThroughAll"

sketch15 = body.newObject("Sketcher::SketchObject", "Sketch014")
sketch15.AttachmentSupport = (doc.getObject("YZ_Plane"), [""])
sketch15.MapMode = "FlatFace"
sketch15.AttachmentOffset = App.Placement(V(0, 0, -3.685), App.Rotation())
sketch15.addGeometry(Part.LineSegment(V(0.93, -3.3, 0), V(0.93, 0, 0)), False)
sketch15.addGeometry(Part.LineSegment(V(0.93, 0, 0), V(0.71, 0, 0)), False)
sketch15.addGeometry(Part.LineSegment(V(0.71, 0, 0), V(0.48, 0.7, 0)), False)
sketch15.addGeometry(Part.LineSegment(V(0.48, 0.7, 0), V(0.48, -3.3, 0)), False)
sketch15.addGeometry(Part.LineSegment(V(0.48, -3.3, 0), V(0.93, -3.3, 0)), False)
sketch15.addGeometry(Part.LineSegment(V(1.43, 0, 0), V(1.43, -3.3, 0)), False)
sketch15.addGeometry(Part.LineSegment(V(1.43, -3.3, 0), V(1.88, -3.3, 0)), False)
sketch15.addGeometry(Part.LineSegment(V(1.88, -3.3, 0), V(1.88, 0.7, 0)), False)
sketch15.addGeometry(Part.LineSegment(V(1.88, 0.7, 0), V(1.65, 0, 0)), False)
sketch15.addGeometry(Part.LineSegment(V(1.65, 0, 0), V(1.43, 0, 0)), False)
sketch15.addConstraint(Sketcher.Constraint("Coincident", 0, 2, 1, 1))
sketch15.addConstraint(Sketcher.Constraint("Coincident", 1, 2, 2, 1))
sketch15.addConstraint(Sketcher.Constraint("Coincident", 2, 2, 3, 1))
sketch15.addConstraint(Sketcher.Constraint("Coincident", 3, 2, 4, 1))
sketch15.addConstraint(Sketcher.Constraint("Coincident", 4, 2, 0, 1))
sketch15.addConstraint(Sketcher.Constraint("Coincident", 5, 2, 6, 1))
sketch15.addConstraint(Sketcher.Constraint("Coincident", 6, 2, 7, 1))
sketch15.addConstraint(Sketcher.Constraint("Coincident", 7, 2, 8, 1))
sketch15.addConstraint(Sketcher.Constraint("Coincident", 8, 2, 9, 1))
sketch15.addConstraint(Sketcher.Constraint("Coincident", 9, 2, 5, 1))
sketch15.addConstraint(Sketcher.Constraint("Vertical", 0))
sketch15.addConstraint(Sketcher.Constraint("Horizontal", 1))
sketch15.addConstraint(Sketcher.Constraint("Vertical", 3))
sketch15.addConstraint(Sketcher.Constraint("Horizontal", 4))
sketch15.addConstraint(Sketcher.Constraint("Vertical", 5))
sketch15.addConstraint(Sketcher.Constraint("Horizontal", 6))
sketch15.addConstraint(Sketcher.Constraint("Vertical", 7))
sketch15.addConstraint(Sketcher.Constraint("Horizontal", 9))
sketch15.addConstraint(Sketcher.Constraint("PointOnObject", 0, 2, -1))
sketch15.addConstraint(Sketcher.Constraint("PointOnObject", 8, 2, -1))
sketch15.addConstraint(Sketcher.Constraint("Horizontal", 4, 2, 5, 2))
sketch15.addConstraint(Sketcher.Constraint("Horizontal", 2, 2, 7, 2))
sketch15.addConstraint(Sketcher.Constraint("Equal", 4, 6))
sketch15.addConstraint(Sketcher.Constraint("Equal", 1, 9))
sketch15.addConstraint(Sketcher.Constraint("DistanceY", 3, 2, 3, 1, Q("4 mm")))
sketch15.addConstraint(Sketcher.Constraint("DistanceY", 0, 1, 0, 2, Q("3.3 mm")))
sketch15.addConstraint(Sketcher.Constraint("DistanceX", 4, 2, 5, 2, Q("0.5 mm")))
sketch15.addConstraint(Sketcher.Constraint("DistanceX", 4, 1, 4, 2, Q("0.445 mm")))
sketch15.addConstraint(Sketcher.Constraint("DistanceX", -1, 1, 0, 2, Q("0.93 mm")))
sketch15.addConstraint(Sketcher.Constraint("DistanceX", 1, 2, 1, 1, Q("0.2225 mm")))
pocket6 = body.newObject("PartDesign::Pocket", "Pocket005")
pocket6.Profile = sketch15
pocket6.Type = "ThroughAll"

sketch16 = body.newObject("Sketcher::SketchObject", "Sketch015")
sketch16.AttachmentSupport = (doc.getObject("YZ_Plane"), [""])
sketch16.MapMode = "FlatFace"
sketch16.AttachmentOffset = App.Placement(V(0, 0, -3.685), App.Rotation())
sketch16.addGeometry(Part.LineSegment(V(3.47, -3.3, 0), V(3.47, 0, 0)), False)
sketch16.addGeometry(Part.LineSegment(V(3.47, 0, 0), V(3.25, 0, 0)), False)
sketch16.addGeometry(Part.LineSegment(V(3.25, 0, 0), V(3.02, 0.7, 0)), False)
sketch16.addGeometry(Part.LineSegment(V(3.02, 0.7, 0), V(3.02, -3.3, 0)), False)
sketch16.addGeometry(Part.LineSegment(V(3.02, -3.3, 0), V(3.47, -3.3, 0)), False)
sketch16.addGeometry(Part.LineSegment(V(3.97, 0, 0), V(3.97, -3.3, 0)), False)
sketch16.addGeometry(Part.LineSegment(V(3.97, -3.3, 0), V(4.42, -3.3, 0)), False)
sketch16.addGeometry(Part.LineSegment(V(4.42, -3.3, 0), V(4.42, 0.7, 0)), False)
sketch16.addGeometry(Part.LineSegment(V(4.42, 0.7, 0), V(4.19, 0, 0)), False)
sketch16.addGeometry(Part.LineSegment(V(4.19, 0, 0), V(3.97, 0, 0)), False)
sketch16.addConstraint(Sketcher.Constraint("Coincident", 0, 2, 1, 1))
sketch16.addConstraint(Sketcher.Constraint("Coincident", 1, 2, 2, 1))
sketch16.addConstraint(Sketcher.Constraint("Coincident", 2, 2, 3, 1))
sketch16.addConstraint(Sketcher.Constraint("Coincident", 3, 2, 4, 1))
sketch16.addConstraint(Sketcher.Constraint("Coincident", 4, 2, 0, 1))
sketch16.addConstraint(Sketcher.Constraint("Coincident", 5, 2, 6, 1))
sketch16.addConstraint(Sketcher.Constraint("Coincident", 6, 2, 7, 1))
sketch16.addConstraint(Sketcher.Constraint("Coincident", 7, 2, 8, 1))
sketch16.addConstraint(Sketcher.Constraint("Coincident", 8, 2, 9, 1))
sketch16.addConstraint(Sketcher.Constraint("Coincident", 9, 2, 5, 1))
sketch16.addConstraint(Sketcher.Constraint("Vertical", 0))
sketch16.addConstraint(Sketcher.Constraint("Horizontal", 1))
sketch16.addConstraint(Sketcher.Constraint("Vertical", 3))
sketch16.addConstraint(Sketcher.Constraint("Horizontal", 4))
sketch16.addConstraint(Sketcher.Constraint("Vertical", 5))
sketch16.addConstraint(Sketcher.Constraint("Horizontal", 6))
sketch16.addConstraint(Sketcher.Constraint("Vertical", 7))
sketch16.addConstraint(Sketcher.Constraint("Horizontal", 9))
sketch16.addConstraint(Sketcher.Constraint("PointOnObject", 0, 2, -1))
sketch16.addConstraint(Sketcher.Constraint("PointOnObject", 8, 2, -1))
sketch16.addConstraint(Sketcher.Constraint("Horizontal", 4, 2, 5, 2))
sketch16.addConstraint(Sketcher.Constraint("Horizontal", 2, 2, 7, 2))
sketch16.addConstraint(Sketcher.Constraint("Equal", 4, 6))
sketch16.addConstraint(Sketcher.Constraint("Equal", 1, 9))
sketch16.addConstraint(Sketcher.Constraint("DistanceY", 3, 2, 3, 1, Q("4 mm")))
sketch16.addConstraint(Sketcher.Constraint("DistanceY", 0, 1, 0, 2, Q("3.3 mm")))
sketch16.addConstraint(Sketcher.Constraint("DistanceX", 4, 2, 5, 2, Q("0.5 mm")))
sketch16.addConstraint(Sketcher.Constraint("DistanceX", 4, 1, 4, 2, Q("0.445 mm")))
sketch16.addConstraint(Sketcher.Constraint("DistanceX", -1, 1, 0, 2, Q("3.47 mm")))
sketch16.addConstraint(Sketcher.Constraint("DistanceX", 1, 2, 1, 1, Q("0.2225 mm")))
pocket7 = body.newObject("PartDesign::Pocket", "Pocket006")
pocket7.Profile = sketch16
pocket7.Type = "ThroughAll"

sketch17 = body.newObject("Sketcher::SketchObject", "Sketch016")
sketch17.AttachmentSupport = (doc.getObject("XZ_Plane"), [""])
sketch17.MapMode = "FlatFace"
sketch17.AttachmentOffset = App.Placement(V(0, 0, 4.595), App.Rotation())
sketch17.addGeometry(Part.LineSegment(V(3.69, 0, 0), V(3.94, 0, 0)), False)
sketch17.addGeometry(Part.LineSegment(V(3.94, 0, 0), V(3.94, 2.25, 0)), False)
sketch17.addGeometry(Part.ArcOfCircle(Part.Circle(V(3.31, 2.25, 0), V(0, 0, 1), 0.62), math.radians(0), math.radians(68)), False)
sketch17.addGeometry(Part.LineSegment(V(3.54, 2.83, 0), V(3.55, 2.75, 0)), False)
sketch17.addGeometry(Part.LineSegment(V(3.55, 2.75, 0), V(3.53, 2.56, 0)), False)
sketch17.addGeometry(Part.ArcOfCircle(Part.Circle(V(3.31, 2.25, 0), V(0, 0, 1), 0.37), math.radians(0), math.radians(55)), False)
sketch17.addGeometry(Part.LineSegment(V(3.69, 2.25, 0), V(3.69, 0, 0)), False)
sketch17.addGeometry(Part.LineSegment(V(-3.94, 0, 0), V(-3.69, 0, 0)), False)
sketch17.addGeometry(Part.LineSegment(V(-3.69, 0, 0), V(-3.69, 2.25, 0)), False)
sketch17.addGeometry(Part.ArcOfCircle(Part.Circle(V(-3.31, 2.25, 0), V(0, 0, 1), 0.37), math.radians(125), math.radians(180)), False)
sketch17.addGeometry(Part.LineSegment(V(-3.53, 2.56, 0), V(-3.55, 2.75, 0)), False)
sketch17.addGeometry(Part.LineSegment(V(-3.55, 2.75, 0), V(-3.54, 2.83, 0)), False)
sketch17.addGeometry(Part.ArcOfCircle(Part.Circle(V(-3.31, 2.25, 0), V(0, 0, 1), 0.62), math.radians(112), math.radians(180)), False)
sketch17.addGeometry(Part.LineSegment(V(-3.94, 2.25, 0), V(-3.94, 0, 0)), False)
sketch17.addConstraint(Sketcher.Constraint("Coincident", 0, 2, 1, 1))
sketch17.addConstraint(Sketcher.Constraint("Tangent", 1, 2, 2, 1))
sketch17.addConstraint(Sketcher.Constraint("Coincident", 2, 2, 3, 1))
sketch17.addConstraint(Sketcher.Constraint("Coincident", 3, 2, 4, 1))
sketch17.addConstraint(Sketcher.Constraint("Coincident", 4, 2, 5, 2))
sketch17.addConstraint(Sketcher.Constraint("Tangent", 5, 1, 6, 1))
sketch17.addConstraint(Sketcher.Constraint("Coincident", 6, 2, 0, 1))
sketch17.addConstraint(Sketcher.Constraint("Coincident", 7, 2, 8, 1))
sketch17.addConstraint(Sketcher.Constraint("Tangent", 8, 2, 9, 2))
sketch17.addConstraint(Sketcher.Constraint("Coincident", 9, 1, 10, 1))
sketch17.addConstraint(Sketcher.Constraint("Coincident", 10, 2, 11, 1))
sketch17.addConstraint(Sketcher.Constraint("Coincident", 11, 2, 12, 1))
sketch17.addConstraint(Sketcher.Constraint("Tangent", 12, 2, 13, 1))
sketch17.addConstraint(Sketcher.Constraint("Coincident", 13, 2, 7, 1))
sketch17.addConstraint(Sketcher.Constraint("Horizontal", 0))
sketch17.addConstraint(Sketcher.Constraint("Vertical", 1))
sketch17.addConstraint(Sketcher.Constraint("Vertical", 6))
sketch17.addConstraint(Sketcher.Constraint("Horizontal", 7))
sketch17.addConstraint(Sketcher.Constraint("Vertical", 8))
sketch17.addConstraint(Sketcher.Constraint("Vertical", 13))
sketch17.addConstraint(Sketcher.Constraint("Coincident", 5, 3, 2, 3))
sketch17.addConstraint(Sketcher.Constraint("Coincident", 12, 3, 9, 3))
sketch17.addConstraint(Sketcher.Constraint("Equal", 5, 9))
sketch17.addConstraint(Sketcher.Constraint("Equal", 2, 12))
sketch17.addConstraint(Sketcher.Constraint("Symmetric", 6, 2, 7, 2, -1, 1))
sketch17.addConstraint(Sketcher.Constraint("Symmetric", 4, 2, 9, 1, -2))
sketch17.addConstraint(Sketcher.Constraint("Symmetric", 3, 2, 10, 2, -2))
sketch17.addConstraint(Sketcher.Constraint("PointOnObject", 0, 2, -1))
sketch17.addConstraint(Sketcher.Constraint("Parallel", 3, 10))
sketch17.addConstraint(Sketcher.Constraint("Parallel", 4, 11))
sketch17.addConstraint(Sketcher.Constraint("Radius", 2, Q("0.625 mm")))
sketch17.addConstraint(Sketcher.Constraint("Radius", 5, Q("0.375 mm")))
sketch17.addConstraint(Sketcher.Constraint("DistanceY", 1, 1, 1, 2, Q("2.25 mm")))
sketch17.addConstraint(Sketcher.Constraint("DistanceY", 5, 3, 3, 2, Q("0.5 mm")))
sketch17.addConstraint(Sketcher.Constraint("DistanceX", -1, 1, 2, 3, Q("3.31 mm")))
sketch17.addConstraint(Sketcher.Constraint("DistanceX", -1, 1, 3, 2, Q("3.55 mm")))
sketch17.addConstraint(Sketcher.Constraint("Distance", 3, Q("0.081698 mm")))
pocket8 = body.newObject("PartDesign::Pocket", "Pocket007")
pocket8.Profile = sketch17
pocket8.Length = 0.445

sketch18 = body.newObject("Sketcher::SketchObject", "Sketch017")
sketch18.AttachmentSupport = (doc.getObject("XZ_Plane"), [""])
sketch18.MapMode = "FlatFace"
sketch18.AttachmentOffset = App.Placement(V(0, 0, -3.97), App.Rotation())
sketch18.addGeometry(Part.LineSegment(V(3.94, 0, 0), V(3.69, 0, 0)), False)
sketch18.addGeometry(Part.LineSegment(V(3.69, 0, 0), V(3.69, 2.25, 0)), False)
sketch18.addGeometry(Part.ArcOfCircle(Part.Circle(V(3.31, 2.25, 0), V(0, 0, 1), 0.37), math.radians(0), math.radians(55)), False)
sketch18.addGeometry(Part.LineSegment(V(3.53, 2.56, 0), V(3.55, 2.75, 0)), False)
sketch18.addGeometry(Part.LineSegment(V(3.55, 2.75, 0), V(3.54, 2.83, 0)), False)
sketch18.addGeometry(Part.ArcOfCircle(Part.Circle(V(3.31, 2.25, 0), V(0, 0, 1), 0.62), math.radians(0), math.radians(68)), False)
sketch18.addGeometry(Part.LineSegment(V(3.94, 2.25, 0), V(3.94, 0, 0)), False)
sketch18.addGeometry(Part.LineSegment(V(-3.69, 0, 0), V(-3.94, 0, 0)), False)
sketch18.addGeometry(Part.LineSegment(V(-3.94, 0, 0), V(-3.94, 2.25, 0)), False)
sketch18.addGeometry(Part.ArcOfCircle(Part.Circle(V(-3.31, 2.25, 0), V(0, 0, 1), 0.62), math.radians(112), math.radians(180)), False)
sketch18.addGeometry(Part.LineSegment(V(-3.54, 2.83, 0), V(-3.55, 2.75, 0)), False)
sketch18.addGeometry(Part.LineSegment(V(-3.55, 2.75, 0), V(-3.53, 2.56, 0)), False)
sketch18.addGeometry(Part.ArcOfCircle(Part.Circle(V(-3.31, 2.25, 0), V(0, 0, 1), 0.37), math.radians(125), math.radians(180)), False)
sketch18.addGeometry(Part.LineSegment(V(-3.69, 2.25, 0), V(-3.69, 0, 0)), False)
sketch18.addConstraint(Sketcher.Constraint("Coincident", 0, 2, 1, 1))
sketch18.addConstraint(Sketcher.Constraint("Tangent", 1, 2, 2, 1))
sketch18.addConstraint(Sketcher.Constraint("Coincident", 2, 2, 3, 1))
sketch18.addConstraint(Sketcher.Constraint("Coincident", 3, 2, 4, 1))
sketch18.addConstraint(Sketcher.Constraint("Coincident", 4, 2, 5, 2))
sketch18.addConstraint(Sketcher.Constraint("Tangent", 5, 1, 6, 1))
sketch18.addConstraint(Sketcher.Constraint("Coincident", 6, 2, 0, 1))
sketch18.addConstraint(Sketcher.Constraint("Coincident", 7, 2, 8, 1))
sketch18.addConstraint(Sketcher.Constraint("Tangent", 8, 2, 9, 2))
sketch18.addConstraint(Sketcher.Constraint("Coincident", 9, 1, 10, 1))
sketch18.addConstraint(Sketcher.Constraint("Coincident", 10, 2, 11, 1))
sketch18.addConstraint(Sketcher.Constraint("Coincident", 11, 2, 12, 1))
sketch18.addConstraint(Sketcher.Constraint("Tangent", 12, 2, 13, 1))
sketch18.addConstraint(Sketcher.Constraint("Coincident", 13, 2, 7, 1))
sketch18.addConstraint(Sketcher.Constraint("Horizontal", 0))
sketch18.addConstraint(Sketcher.Constraint("Vertical", 1))
sketch18.addConstraint(Sketcher.Constraint("Vertical", 6))
sketch18.addConstraint(Sketcher.Constraint("Horizontal", 7))
sketch18.addConstraint(Sketcher.Constraint("Vertical", 8))
sketch18.addConstraint(Sketcher.Constraint("Vertical", 13))
sketch18.addConstraint(Sketcher.Constraint("Coincident", 5, 3, 2, 3))
sketch18.addConstraint(Sketcher.Constraint("Coincident", 12, 3, 9, 3))
sketch18.addConstraint(Sketcher.Constraint("Equal", 5, 9))
sketch18.addConstraint(Sketcher.Constraint("Equal", 2, 12))
sketch18.addConstraint(Sketcher.Constraint("Symmetric", 6, 2, 7, 2, -1, 1))
sketch18.addConstraint(Sketcher.Constraint("Symmetric", 4, 2, 9, 1, -2))
sketch18.addConstraint(Sketcher.Constraint("Symmetric", 3, 2, 10, 2, -2))
sketch18.addConstraint(Sketcher.Constraint("PointOnObject", 0, 2, -1))
sketch18.addConstraint(Sketcher.Constraint("Parallel", 3, 10))
sketch18.addConstraint(Sketcher.Constraint("Parallel", 4, 11))
sketch18.addConstraint(Sketcher.Constraint("Radius", 2, Q("0.375 mm")))
sketch18.addConstraint(Sketcher.Constraint("Radius", 5, Q("0.625 mm")))
sketch18.addConstraint(Sketcher.Constraint("DistanceY", 1, 1, 1, 2, Q("2.25 mm")))
sketch18.addConstraint(Sketcher.Constraint("DistanceY", 1, 2, 3, 2, Q("0.5 mm")))
sketch18.addConstraint(Sketcher.Constraint("DistanceX", -1, 1, 2, 3, Q("3.31 mm")))
sketch18.addConstraint(Sketcher.Constraint("DistanceX", -1, 1, 3, 2, Q("3.55 mm")))
sketch18.addConstraint(Sketcher.Constraint("Distance", 4, Q("0.081698 mm")))
pocket9 = body.newObject("PartDesign::Pocket", "Pocket008")
pocket9.Profile = sketch18
pocket9.Length = 0.445

doc.recompute()
